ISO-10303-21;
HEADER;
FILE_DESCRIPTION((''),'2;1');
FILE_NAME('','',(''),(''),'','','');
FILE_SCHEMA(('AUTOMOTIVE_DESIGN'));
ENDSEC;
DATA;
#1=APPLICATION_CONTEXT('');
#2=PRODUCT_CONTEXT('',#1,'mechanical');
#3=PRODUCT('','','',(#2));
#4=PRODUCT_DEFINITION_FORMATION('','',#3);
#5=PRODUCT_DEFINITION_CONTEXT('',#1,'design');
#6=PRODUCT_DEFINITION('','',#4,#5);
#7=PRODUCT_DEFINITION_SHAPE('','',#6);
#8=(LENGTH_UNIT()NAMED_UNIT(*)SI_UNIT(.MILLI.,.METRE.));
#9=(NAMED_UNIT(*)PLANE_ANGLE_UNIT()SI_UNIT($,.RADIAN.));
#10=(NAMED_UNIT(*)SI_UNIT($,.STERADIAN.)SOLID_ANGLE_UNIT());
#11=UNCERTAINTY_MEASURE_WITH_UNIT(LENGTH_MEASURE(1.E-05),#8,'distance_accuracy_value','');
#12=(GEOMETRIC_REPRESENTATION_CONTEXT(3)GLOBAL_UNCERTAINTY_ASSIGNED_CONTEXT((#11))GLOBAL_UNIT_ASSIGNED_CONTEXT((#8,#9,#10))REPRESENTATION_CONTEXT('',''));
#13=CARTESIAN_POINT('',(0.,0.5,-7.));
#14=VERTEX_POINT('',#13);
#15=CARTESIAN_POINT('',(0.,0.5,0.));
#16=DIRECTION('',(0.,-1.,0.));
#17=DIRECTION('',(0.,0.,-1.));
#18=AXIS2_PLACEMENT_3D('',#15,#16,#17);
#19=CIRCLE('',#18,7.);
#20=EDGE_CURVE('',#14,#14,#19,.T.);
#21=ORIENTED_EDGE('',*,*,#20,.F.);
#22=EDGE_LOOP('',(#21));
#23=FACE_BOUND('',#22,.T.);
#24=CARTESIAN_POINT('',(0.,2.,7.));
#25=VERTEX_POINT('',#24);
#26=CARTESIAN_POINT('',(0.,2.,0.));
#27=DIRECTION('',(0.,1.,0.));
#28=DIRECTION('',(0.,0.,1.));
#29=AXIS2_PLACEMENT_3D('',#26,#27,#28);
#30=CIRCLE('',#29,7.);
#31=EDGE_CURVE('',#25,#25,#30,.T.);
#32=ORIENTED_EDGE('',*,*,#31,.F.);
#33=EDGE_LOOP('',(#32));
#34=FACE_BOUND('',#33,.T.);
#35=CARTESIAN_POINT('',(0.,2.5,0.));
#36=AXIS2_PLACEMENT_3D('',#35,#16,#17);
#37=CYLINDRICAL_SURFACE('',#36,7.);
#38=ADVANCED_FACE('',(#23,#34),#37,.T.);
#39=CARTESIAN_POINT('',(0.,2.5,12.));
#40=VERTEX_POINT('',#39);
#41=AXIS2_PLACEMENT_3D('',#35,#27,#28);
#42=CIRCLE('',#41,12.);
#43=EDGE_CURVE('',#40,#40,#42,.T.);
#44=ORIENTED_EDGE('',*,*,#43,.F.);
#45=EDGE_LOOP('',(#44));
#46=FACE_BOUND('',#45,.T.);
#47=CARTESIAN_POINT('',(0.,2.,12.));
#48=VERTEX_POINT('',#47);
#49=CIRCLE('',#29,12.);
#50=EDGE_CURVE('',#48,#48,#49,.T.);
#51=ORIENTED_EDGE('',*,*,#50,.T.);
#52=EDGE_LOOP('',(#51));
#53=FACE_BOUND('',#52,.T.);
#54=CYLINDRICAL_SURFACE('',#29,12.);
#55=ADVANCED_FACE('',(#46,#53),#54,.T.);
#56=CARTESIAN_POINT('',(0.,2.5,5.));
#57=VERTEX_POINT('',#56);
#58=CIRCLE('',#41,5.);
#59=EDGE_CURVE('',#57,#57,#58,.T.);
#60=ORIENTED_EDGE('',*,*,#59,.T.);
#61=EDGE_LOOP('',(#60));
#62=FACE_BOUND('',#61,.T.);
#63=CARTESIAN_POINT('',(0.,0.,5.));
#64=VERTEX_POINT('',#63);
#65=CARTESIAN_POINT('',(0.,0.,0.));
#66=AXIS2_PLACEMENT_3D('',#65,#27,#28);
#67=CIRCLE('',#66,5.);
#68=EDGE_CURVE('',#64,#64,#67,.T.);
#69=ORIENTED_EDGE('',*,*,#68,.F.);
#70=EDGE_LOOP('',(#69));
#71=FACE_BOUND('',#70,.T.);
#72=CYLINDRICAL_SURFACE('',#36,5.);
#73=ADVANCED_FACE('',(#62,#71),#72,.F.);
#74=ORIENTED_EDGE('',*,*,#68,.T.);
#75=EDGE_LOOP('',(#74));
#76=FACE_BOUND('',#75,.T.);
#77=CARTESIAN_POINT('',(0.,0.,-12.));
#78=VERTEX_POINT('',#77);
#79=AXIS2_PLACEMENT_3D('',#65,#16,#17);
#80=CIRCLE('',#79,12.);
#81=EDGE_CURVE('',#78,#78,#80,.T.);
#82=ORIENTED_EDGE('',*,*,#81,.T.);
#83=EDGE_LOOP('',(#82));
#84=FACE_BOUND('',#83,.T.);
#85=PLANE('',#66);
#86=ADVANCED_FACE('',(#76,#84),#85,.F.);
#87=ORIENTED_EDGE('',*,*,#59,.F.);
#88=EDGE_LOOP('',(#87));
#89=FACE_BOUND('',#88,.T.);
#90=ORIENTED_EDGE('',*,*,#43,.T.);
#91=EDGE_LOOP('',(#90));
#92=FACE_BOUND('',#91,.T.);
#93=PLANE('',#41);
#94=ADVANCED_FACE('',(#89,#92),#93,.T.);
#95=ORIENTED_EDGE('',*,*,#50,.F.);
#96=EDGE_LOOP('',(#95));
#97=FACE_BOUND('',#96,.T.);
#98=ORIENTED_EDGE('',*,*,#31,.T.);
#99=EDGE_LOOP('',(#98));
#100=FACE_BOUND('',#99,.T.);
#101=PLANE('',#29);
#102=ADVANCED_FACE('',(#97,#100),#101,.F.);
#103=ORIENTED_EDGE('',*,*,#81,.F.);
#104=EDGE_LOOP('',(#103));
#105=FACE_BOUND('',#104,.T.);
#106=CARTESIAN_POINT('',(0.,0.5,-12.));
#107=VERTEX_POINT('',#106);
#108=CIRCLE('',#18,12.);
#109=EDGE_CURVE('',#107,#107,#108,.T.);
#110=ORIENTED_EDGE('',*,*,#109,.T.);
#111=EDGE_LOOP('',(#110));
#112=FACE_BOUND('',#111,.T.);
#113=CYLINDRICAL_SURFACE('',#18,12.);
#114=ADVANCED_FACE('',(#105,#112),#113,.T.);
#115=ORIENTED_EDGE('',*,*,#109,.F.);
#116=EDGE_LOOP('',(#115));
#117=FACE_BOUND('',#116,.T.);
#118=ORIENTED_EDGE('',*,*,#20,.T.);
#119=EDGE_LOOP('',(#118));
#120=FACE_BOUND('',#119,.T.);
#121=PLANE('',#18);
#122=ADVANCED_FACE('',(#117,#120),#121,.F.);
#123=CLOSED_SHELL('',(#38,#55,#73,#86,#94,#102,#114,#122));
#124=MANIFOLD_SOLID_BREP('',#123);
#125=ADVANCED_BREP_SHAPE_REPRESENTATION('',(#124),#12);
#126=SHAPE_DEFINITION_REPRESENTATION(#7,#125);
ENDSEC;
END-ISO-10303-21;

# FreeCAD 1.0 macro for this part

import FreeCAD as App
import Part
import Sketcher

V = App.Vector

doc = App.newDocument("Part")
body = doc.addObject("PartDesign::Body", "Body")

sketch1 = body.newObject("Sketcher::SketchObject", "Sketch")
sketch1.AttachmentSupport = (doc.getObject("XZ_Plane"), [""])
sketch1.MapMode = "FlatFace"
sketch1.addGeometry(Part.Circle(V(0, 0, 0), V(0, 0, 1), 7), False)
sketch1.addGeometry(Part.Circle(V(0, 0, 0), V(0, 0, 1), 5), False)
sketch1.addConstraint(Sketcher.Constraint("Coincident", 0, 3, -1, 1))
sketch1.addConstraint(Sketcher.Constraint("Coincident", 1, 3, -1, 1))
sketch1.addConstraint(Sketcher.Constraint("Diameter", 0, 14.0))
sketch1.addConstraint(Sketcher.Constraint("Diameter", 1, 10.0))
pad1 = body.newObject("PartDesign::Pad", "Pad")
pad1.Profile = sketch1
pad1.Length = 2.5
pad1.Reversed = True

sketch2 = body.newObject("Sketcher::SketchObject", "Sketch001")
sketch2.AttachmentSupport = (doc.getObject("XZ_Plane"), [""])
sketch2.MapMode = "FlatFace"
sketch2.AttachmentOffset = App.Placement(V(0, 0, -2), App.Rotation())
sketch2.addGeometry(Part.Circle(V(0, 0, 0), V(0, 0, 1), 12), False)
sketch2.addGeometry(Part.Circle(V(0, 0, 0), V(0, 0, 1), 7), False)
sketch2.addConstraint(Sketcher.Constraint("Coincident", 0, 3, -1, 1))
sketch2.addConstraint(Sketcher.Constraint("Coincident", 1, 3, -1, 1))
sketch2.addConstraint(Sketcher.Constraint("Diameter", 0, 24.0))
sketch2.addConstraint(Sketcher.Constraint("Diameter", 1, 14.0))
pad2 = body.newObject("PartDesign::Pad", "Pad001")
pad2.Profile = sketch2
pad2.Length = 0.5
pad2.Reversed = True

sketch3 = body.newObject("Sketcher::SketchObject", "Sketch002")
sketch3.AttachmentSupport = (doc.getObject("XZ_Plane"), [""])
sketch3.MapMode = "FlatFace"
sketch3.addGeometry(Part.Circle(V(0, 0, 0), V(0, 0, 1), 12), False)
sketch3.addGeometry(Part.Circle(V(0, 0, 0), V(0, 0, 1), 7), False)
sketch3.addConstraint(Sketcher.Constraint("Coincident", 0, 3, -1, 1))
sketch3.addConstraint(Sketcher.Constraint("Coincident", 1, 3, -1, 1))
sketch3.addConstraint(Sketcher.Constraint("Diameter", 0, 24.0))
sketch3.addConstraint(Sketcher.Constraint("Diameter", 1, 14.0))
pad3 = body.newObject("PartDesign::Pad", "Pad002")
pad3.Profile = sketch3
pad3.Length = 0.5
pad3.Reversed = True

doc.recompute()
